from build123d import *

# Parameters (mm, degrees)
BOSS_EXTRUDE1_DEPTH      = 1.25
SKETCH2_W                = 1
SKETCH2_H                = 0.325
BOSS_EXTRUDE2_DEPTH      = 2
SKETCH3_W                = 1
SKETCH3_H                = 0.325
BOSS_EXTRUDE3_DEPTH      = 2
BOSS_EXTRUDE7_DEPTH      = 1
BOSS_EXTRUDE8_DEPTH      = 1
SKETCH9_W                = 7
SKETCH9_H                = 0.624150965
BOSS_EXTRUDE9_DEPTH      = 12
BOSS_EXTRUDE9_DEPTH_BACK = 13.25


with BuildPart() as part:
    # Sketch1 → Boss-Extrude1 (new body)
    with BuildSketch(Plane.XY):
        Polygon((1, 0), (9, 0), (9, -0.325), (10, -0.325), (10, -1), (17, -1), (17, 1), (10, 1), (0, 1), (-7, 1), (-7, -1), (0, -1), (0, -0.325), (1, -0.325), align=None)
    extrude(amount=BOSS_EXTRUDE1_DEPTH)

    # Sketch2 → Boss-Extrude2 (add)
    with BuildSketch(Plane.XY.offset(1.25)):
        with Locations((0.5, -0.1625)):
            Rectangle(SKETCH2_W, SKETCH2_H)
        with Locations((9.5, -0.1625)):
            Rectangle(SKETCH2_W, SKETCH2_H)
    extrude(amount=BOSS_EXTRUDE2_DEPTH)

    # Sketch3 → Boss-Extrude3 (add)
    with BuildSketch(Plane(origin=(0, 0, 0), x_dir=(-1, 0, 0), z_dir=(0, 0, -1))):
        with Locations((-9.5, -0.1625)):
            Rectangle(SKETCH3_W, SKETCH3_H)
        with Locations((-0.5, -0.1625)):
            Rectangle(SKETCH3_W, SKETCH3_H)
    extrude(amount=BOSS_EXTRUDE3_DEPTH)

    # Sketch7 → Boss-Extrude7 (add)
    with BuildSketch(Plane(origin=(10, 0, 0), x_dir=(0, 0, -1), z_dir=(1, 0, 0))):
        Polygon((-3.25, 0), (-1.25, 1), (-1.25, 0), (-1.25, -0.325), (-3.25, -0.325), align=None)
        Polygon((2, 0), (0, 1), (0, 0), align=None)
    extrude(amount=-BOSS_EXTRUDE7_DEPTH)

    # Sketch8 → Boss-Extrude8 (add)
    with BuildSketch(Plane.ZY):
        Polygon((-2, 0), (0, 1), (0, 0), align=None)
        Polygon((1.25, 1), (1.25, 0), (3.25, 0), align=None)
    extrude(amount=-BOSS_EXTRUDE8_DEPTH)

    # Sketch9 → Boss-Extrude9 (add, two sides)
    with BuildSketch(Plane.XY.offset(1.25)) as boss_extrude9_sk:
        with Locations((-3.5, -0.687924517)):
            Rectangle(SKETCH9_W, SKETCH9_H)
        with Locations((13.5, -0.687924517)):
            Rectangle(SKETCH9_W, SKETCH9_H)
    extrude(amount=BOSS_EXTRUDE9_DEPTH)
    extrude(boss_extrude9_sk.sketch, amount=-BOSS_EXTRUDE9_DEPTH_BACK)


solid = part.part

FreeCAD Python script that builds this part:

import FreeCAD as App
import Part
import Sketcher
Q = App.Units.Quantity


def add_polygon(sketch, points):
    """Adds a closed chain of lines whose ends are joined by coincident constraints."""
    first, n = sketch.GeometryCount, len(points)
    for a, b in zip(points, points[1:] + points[:1]):
        sketch.addGeometry(Part.LineSegment(App.Vector(*a, 0), App.Vector(*b, 0)), False)
    for i in range(n):
        sketch.addConstraint(Sketcher.Constraint("Coincident", first + i, 2, first + (i + 1) % n, 1))

doc = App.newDocument("Part")
body = doc.addObject("PartDesign::Body", "Body")

# Sketch on XY plane
sketch1 = body.newObject("Sketcher::SketchObject", "Sketch")
sketch1.AttachmentSupport = (doc.getObject("XY_Plane"), [""])
sketch1.MapMode = "FlatFace"
add_polygon(sketch1, [(1, 0), (9, 0), (9, -0.33), (10, -0.33), (10, -1), (17, -1), (17, 1), (-7, 1), (-7, -1), (0, -1), (0, -0.33), (1, -0.33)])  # lines 0-11
sketch1.addConstraint([
    Sketcher.Constraint("Horizontal", 0),
    Sketcher.Constraint("Vertical", 1),
    Sketcher.Constraint("Horizontal", 2),
    Sketcher.Constraint("Vertical", 3),
    Sketcher.Constraint("Horizontal", 4),
    Sketcher.Constraint("Vertical", 5),
    Sketcher.Constraint("Horizontal", 6),
    Sketcher.Constraint("Vertical", 7),
    Sketcher.Constraint("Horizontal", 8),
    Sketcher.Constraint("Vertical", 9),
    Sketcher.Constraint("Horizontal", 10),
    Sketcher.Constraint("Vertical", 11),
    Sketcher.Constraint("PointOnObject", 0, 2, -1),
    Sketcher.Constraint("PointOnObject", 8, 2, -2),
    Sketcher.Constraint("Horizontal", 4, 2, 7, 2),
    Sketcher.Constraint("Horizontal", 2, 2, 9, 2),
    Sketcher.Constraint("Equal", 4, 8),
    Sketcher.Constraint("Equal", 2, 10),
    Sketcher.Constraint("DistanceX", 0, 1, 0, 2, Q("8 mm")),
    Sketcher.Constraint("DistanceX", 2, 1, 2, 2, Q("1 mm")),
    Sketcher.Constraint("DistanceX", 4, 1, 4, 2, Q("7 mm")),
    Sketcher.Constraint("DistanceY", 5, 1, 5, 2, Q("2 mm")),
    Sketcher.Constraint("DistanceY", 3, 2, -1, 1, Q("1 mm")),
    Sketcher.Constraint("DistanceY", 1, 2, 1, 1, Q("0.325 mm")),
])
pad1 = body.newObject("PartDesign::Pad", "Pad")
pad1.Profile = sketch1
pad1.Length = 1.25

# Sketch on XY plane
sketch2 = body.newObject("Sketcher::SketchObject", "Sketch001")
sketch2.AttachmentSupport = (doc.getObject("XY_Plane"), [""])
sketch2.MapMode = "FlatFace"
sketch2.AttachmentOffset = App.Placement(App.Vector(0, 0, 1.25), App.Rotation())
add_polygon(sketch2, [(0, 0), (0, -0.33), (1, -0.33), (1, 0)])  # lines 0-3
add_polygon(sketch2, [(9, 0), (9, -0.33), (10, -0.33), (10, 0)])  # lines 4-7
sketch2.addConstraint([
    Sketcher.Constraint("Vertical", 0),
    Sketcher.Constraint("Horizontal", 1),
    Sketcher.Constraint("Vertical", 2),
    Sketcher.Constraint("Horizontal", 3),
    Sketcher.Constraint("Vertical", 4),
    Sketcher.Constraint("Horizontal", 5),
    Sketcher.Constraint("Vertical", 6),
    Sketcher.Constraint("Horizontal", 7),
    Sketcher.Constraint("Coincident", 3, 2, -1, 1),
    Sketcher.Constraint("PointOnObject", 6, 2, -1),
    Sketcher.Constraint("Horizontal", 1, 2, 4, 2),
    Sketcher.Constraint("Equal", 3, 5),
    Sketcher.Constraint("DistanceX", 1, 1, 1, 2, Q("1 mm")),
    Sketcher.Constraint("DistanceX", -1, 1, 4, 2, Q("9 mm")),
    Sketcher.Constraint("DistanceY", 0, 2, 0, 1, Q("0.325 mm")),
])
pad2 = body.newObject("PartDesign::Pad", "Pad001")
pad2.Profile = sketch2
pad2.Length = 2

# Sketch on XY plane
sketch3 = body.newObject("Sketcher::SketchObject", "Sketch002")
sketch3.AttachmentSupport = (doc.getObject("XY_Plane"), [""])
sketch3.MapMode = "FlatFace"
add_polygon(sketch3, [(10, 0), (10, -0.33), (9, -0.33), (9, 0)])  # lines 0-3
add_polygon(sketch3, [(1, 0), (1, -0.33), (0, -0.33), (0, 0)])  # lines 4-7
sketch3.addConstraint([
    Sketcher.Constraint("Vertical", 0),
    Sketcher.Constraint("Horizontal", 1),
    Sketcher.Constraint("Vertical", 2),
    Sketcher.Constraint("Horizontal", 3),
    Sketcher.Constraint("Vertical", 4),
    Sketcher.Constraint("Horizontal", 5),
    Sketcher.Constraint("Vertical", 6),
    Sketcher.Constraint("Horizontal", 7),
    Sketcher.Constraint("Coincident", 6, 2, -1, 1),
    Sketcher.Constraint("PointOnObject", 2, 2, -1),
    Sketcher.Constraint("Horizontal", 1, 2, 4, 2),
    Sketcher.Constraint("Equal", 3, 5),
    Sketcher.Constraint("DistanceX", 1, 2, 1, 1, Q("1 mm")),
    Sketcher.Constraint("DistanceX", -1, 1, 0, 2, Q("10 mm")),
    Sketcher.Constraint("DistanceY", 0, 2, 0, 1, Q("0.325 mm")),
])
pad3 = body.newObject("PartDesign::Pad", "Pad002")
pad3.Profile = sketch3
pad3.Length = 2
pad3.Reversed = True

# Sketch on YZ plane
sketch4 = body.newObject("Sketcher::SketchObject", "Sketch003")
sketch4.AttachmentSupport = (doc.getObject("YZ_Plane"), [""])
sketch4.MapMode = "FlatFace"
sketch4.AttachmentOffset = App.Placement(App.Vector(0, 0, 10), App.Rotation())
add_polygon(sketch4, [(1, 1.25), (0, 3.25), (-0.33, 3.25), (-0.33, 1.25)])  # lines 0-3
add_polygon(sketch4, [(0, -2), (1, 0), (0, 0)])  # lines 4-6
sketch4.addConstraint([
    Sketcher.Constraint("Horizontal", 1),
    Sketcher.Constraint("Vertical", 2),
    Sketcher.Constraint("Horizontal", 3),
    Sketcher.Constraint("Horizontal", 5),
    Sketcher.Constraint("Vertical", 6),
    Sketcher.Constraint("Coincident", 5, 2, -1, 1),
    Sketcher.Constraint("PointOnObject", 0, 2, -2),
    Sketcher.Constraint("Vertical", 3, 2, 4, 2),
    Sketcher.Constraint("Equal", 2, 6),
    Sketcher.Constraint("DistanceX", 5, 2, 5, 1, Q("1 mm")),
    Sketcher.Constraint("DistanceY", 2, 2, 2, 1, Q("2 mm")),
    Sketcher.Constraint("DistanceX", 1, 2, 1, 1, Q("0.325 mm")),
    Sketcher.Constraint("DistanceY", -1, 1, 0, 2, Q("3.25 mm")),
])
pad4 = body.newObject("PartDesign::Pad", "Pad003")
pad4.Profile = sketch4
pad4.Length = 1
pad4.Reversed = True

# Sketch on YZ plane
sketch5 = body.newObject("Sketcher::SketchObject", "Sketch004")
sketch5.AttachmentSupport = (doc.getObject("YZ_Plane"), [""])
sketch5.MapMode = "FlatFace"
add_polygon(sketch5, [(1, 0), (0, -2), (0, 0)])  # lines 0-2
add_polygon(sketch5, [(1, 1.2), (0, 1.2), (0, 3.2)])  # lines 3-5
sketch5.addConstraint([
    Sketcher.Constraint("Vertical", 1),
    Sketcher.Constraint("Horizontal", 2),
    Sketcher.Constraint("Horizontal", 3),
    Sketcher.Constraint("Vertical", 4),
    Sketcher.Constraint("Coincident", 1, 2, -1, 1),
    Sketcher.Constraint("PointOnObject", 3, 2, -2),
    Sketcher.Constraint("Vertical", 2, 2, 5, 2),
    Sketcher.Constraint("Equal", 1, 4),
    Sketcher.Constraint("DistanceX", 2, 1, 2, 2, Q("1 mm")),
    Sketcher.Constraint("DistanceY", 1, 1, 1, 2, Q("2 mm")),
    Sketcher.Constraint("DistanceY", -1, 1, 3, 2, Q("1.25 mm")),
])
pad5 = body.newObject("PartDesign::Pad", "Pad004")
pad5.Profile = sketch5
pad5.Length = 1

# Sketch on XY plane
sketch6 = body.newObject("Sketcher::SketchObject", "Sketch005")
sketch6.AttachmentSupport = (doc.getObject("XY_Plane"), [""])
sketch6.MapMode = "FlatFace"
sketch6.AttachmentOffset = App.Placement(App.Vector(0, 0, 1.25), App.Rotation())
add_polygon(sketch6, [(-7, -0.4), (-7, -1), (0, -1), (0, -0.4)])  # lines 0-3
add_polygon(sketch6, [(10, -0.4), (10, -1), (17, -1), (17, -0.4)])  # lines 4-7
sketch6.addConstraint([
    Sketcher.Constraint("Vertical", 0),
    Sketcher.Constraint("Horizontal", 1),
    Sketcher.Constraint("Vertical", 2),
    Sketcher.Constraint("Horizontal", 3),
    Sketcher.Constraint("Vertical", 4),
    Sketcher.Constraint("Horizontal", 5),
    Sketcher.Constraint("Vertical", 6),
    Sketcher.Constraint("Horizontal", 7),
    Sketcher.Constraint("PointOnObject", 1, 2, -2),
    Sketcher.Constraint("Horizontal", 1, 2, 4, 2),
    Sketcher.Constraint("Horizontal", 3, 2, 6, 2),
    Sketcher.Constraint("Equal", 3, 5),
    Sketcher.Constraint("DistanceX", 1, 1, 1, 2, Q("7 mm")),
    Sketcher.Constraint("DistanceY", 0, 2, -1, 1, Q("1 mm")),
    Sketcher.Constraint("DistanceX", -1, 1, 4, 2, Q("10 mm")),
    Sketcher.Constraint("DistanceY", 0, 2, 0, 1, Q("0.624151 mm")),
])
pad6 = body.newObject("PartDesign::Pad", "Pad005")
pad6.Profile = sketch6
pad6.Type = "TwoLengths"
pad6.Length = 12
pad6.Length2 = 13.25

doc.recompute()
